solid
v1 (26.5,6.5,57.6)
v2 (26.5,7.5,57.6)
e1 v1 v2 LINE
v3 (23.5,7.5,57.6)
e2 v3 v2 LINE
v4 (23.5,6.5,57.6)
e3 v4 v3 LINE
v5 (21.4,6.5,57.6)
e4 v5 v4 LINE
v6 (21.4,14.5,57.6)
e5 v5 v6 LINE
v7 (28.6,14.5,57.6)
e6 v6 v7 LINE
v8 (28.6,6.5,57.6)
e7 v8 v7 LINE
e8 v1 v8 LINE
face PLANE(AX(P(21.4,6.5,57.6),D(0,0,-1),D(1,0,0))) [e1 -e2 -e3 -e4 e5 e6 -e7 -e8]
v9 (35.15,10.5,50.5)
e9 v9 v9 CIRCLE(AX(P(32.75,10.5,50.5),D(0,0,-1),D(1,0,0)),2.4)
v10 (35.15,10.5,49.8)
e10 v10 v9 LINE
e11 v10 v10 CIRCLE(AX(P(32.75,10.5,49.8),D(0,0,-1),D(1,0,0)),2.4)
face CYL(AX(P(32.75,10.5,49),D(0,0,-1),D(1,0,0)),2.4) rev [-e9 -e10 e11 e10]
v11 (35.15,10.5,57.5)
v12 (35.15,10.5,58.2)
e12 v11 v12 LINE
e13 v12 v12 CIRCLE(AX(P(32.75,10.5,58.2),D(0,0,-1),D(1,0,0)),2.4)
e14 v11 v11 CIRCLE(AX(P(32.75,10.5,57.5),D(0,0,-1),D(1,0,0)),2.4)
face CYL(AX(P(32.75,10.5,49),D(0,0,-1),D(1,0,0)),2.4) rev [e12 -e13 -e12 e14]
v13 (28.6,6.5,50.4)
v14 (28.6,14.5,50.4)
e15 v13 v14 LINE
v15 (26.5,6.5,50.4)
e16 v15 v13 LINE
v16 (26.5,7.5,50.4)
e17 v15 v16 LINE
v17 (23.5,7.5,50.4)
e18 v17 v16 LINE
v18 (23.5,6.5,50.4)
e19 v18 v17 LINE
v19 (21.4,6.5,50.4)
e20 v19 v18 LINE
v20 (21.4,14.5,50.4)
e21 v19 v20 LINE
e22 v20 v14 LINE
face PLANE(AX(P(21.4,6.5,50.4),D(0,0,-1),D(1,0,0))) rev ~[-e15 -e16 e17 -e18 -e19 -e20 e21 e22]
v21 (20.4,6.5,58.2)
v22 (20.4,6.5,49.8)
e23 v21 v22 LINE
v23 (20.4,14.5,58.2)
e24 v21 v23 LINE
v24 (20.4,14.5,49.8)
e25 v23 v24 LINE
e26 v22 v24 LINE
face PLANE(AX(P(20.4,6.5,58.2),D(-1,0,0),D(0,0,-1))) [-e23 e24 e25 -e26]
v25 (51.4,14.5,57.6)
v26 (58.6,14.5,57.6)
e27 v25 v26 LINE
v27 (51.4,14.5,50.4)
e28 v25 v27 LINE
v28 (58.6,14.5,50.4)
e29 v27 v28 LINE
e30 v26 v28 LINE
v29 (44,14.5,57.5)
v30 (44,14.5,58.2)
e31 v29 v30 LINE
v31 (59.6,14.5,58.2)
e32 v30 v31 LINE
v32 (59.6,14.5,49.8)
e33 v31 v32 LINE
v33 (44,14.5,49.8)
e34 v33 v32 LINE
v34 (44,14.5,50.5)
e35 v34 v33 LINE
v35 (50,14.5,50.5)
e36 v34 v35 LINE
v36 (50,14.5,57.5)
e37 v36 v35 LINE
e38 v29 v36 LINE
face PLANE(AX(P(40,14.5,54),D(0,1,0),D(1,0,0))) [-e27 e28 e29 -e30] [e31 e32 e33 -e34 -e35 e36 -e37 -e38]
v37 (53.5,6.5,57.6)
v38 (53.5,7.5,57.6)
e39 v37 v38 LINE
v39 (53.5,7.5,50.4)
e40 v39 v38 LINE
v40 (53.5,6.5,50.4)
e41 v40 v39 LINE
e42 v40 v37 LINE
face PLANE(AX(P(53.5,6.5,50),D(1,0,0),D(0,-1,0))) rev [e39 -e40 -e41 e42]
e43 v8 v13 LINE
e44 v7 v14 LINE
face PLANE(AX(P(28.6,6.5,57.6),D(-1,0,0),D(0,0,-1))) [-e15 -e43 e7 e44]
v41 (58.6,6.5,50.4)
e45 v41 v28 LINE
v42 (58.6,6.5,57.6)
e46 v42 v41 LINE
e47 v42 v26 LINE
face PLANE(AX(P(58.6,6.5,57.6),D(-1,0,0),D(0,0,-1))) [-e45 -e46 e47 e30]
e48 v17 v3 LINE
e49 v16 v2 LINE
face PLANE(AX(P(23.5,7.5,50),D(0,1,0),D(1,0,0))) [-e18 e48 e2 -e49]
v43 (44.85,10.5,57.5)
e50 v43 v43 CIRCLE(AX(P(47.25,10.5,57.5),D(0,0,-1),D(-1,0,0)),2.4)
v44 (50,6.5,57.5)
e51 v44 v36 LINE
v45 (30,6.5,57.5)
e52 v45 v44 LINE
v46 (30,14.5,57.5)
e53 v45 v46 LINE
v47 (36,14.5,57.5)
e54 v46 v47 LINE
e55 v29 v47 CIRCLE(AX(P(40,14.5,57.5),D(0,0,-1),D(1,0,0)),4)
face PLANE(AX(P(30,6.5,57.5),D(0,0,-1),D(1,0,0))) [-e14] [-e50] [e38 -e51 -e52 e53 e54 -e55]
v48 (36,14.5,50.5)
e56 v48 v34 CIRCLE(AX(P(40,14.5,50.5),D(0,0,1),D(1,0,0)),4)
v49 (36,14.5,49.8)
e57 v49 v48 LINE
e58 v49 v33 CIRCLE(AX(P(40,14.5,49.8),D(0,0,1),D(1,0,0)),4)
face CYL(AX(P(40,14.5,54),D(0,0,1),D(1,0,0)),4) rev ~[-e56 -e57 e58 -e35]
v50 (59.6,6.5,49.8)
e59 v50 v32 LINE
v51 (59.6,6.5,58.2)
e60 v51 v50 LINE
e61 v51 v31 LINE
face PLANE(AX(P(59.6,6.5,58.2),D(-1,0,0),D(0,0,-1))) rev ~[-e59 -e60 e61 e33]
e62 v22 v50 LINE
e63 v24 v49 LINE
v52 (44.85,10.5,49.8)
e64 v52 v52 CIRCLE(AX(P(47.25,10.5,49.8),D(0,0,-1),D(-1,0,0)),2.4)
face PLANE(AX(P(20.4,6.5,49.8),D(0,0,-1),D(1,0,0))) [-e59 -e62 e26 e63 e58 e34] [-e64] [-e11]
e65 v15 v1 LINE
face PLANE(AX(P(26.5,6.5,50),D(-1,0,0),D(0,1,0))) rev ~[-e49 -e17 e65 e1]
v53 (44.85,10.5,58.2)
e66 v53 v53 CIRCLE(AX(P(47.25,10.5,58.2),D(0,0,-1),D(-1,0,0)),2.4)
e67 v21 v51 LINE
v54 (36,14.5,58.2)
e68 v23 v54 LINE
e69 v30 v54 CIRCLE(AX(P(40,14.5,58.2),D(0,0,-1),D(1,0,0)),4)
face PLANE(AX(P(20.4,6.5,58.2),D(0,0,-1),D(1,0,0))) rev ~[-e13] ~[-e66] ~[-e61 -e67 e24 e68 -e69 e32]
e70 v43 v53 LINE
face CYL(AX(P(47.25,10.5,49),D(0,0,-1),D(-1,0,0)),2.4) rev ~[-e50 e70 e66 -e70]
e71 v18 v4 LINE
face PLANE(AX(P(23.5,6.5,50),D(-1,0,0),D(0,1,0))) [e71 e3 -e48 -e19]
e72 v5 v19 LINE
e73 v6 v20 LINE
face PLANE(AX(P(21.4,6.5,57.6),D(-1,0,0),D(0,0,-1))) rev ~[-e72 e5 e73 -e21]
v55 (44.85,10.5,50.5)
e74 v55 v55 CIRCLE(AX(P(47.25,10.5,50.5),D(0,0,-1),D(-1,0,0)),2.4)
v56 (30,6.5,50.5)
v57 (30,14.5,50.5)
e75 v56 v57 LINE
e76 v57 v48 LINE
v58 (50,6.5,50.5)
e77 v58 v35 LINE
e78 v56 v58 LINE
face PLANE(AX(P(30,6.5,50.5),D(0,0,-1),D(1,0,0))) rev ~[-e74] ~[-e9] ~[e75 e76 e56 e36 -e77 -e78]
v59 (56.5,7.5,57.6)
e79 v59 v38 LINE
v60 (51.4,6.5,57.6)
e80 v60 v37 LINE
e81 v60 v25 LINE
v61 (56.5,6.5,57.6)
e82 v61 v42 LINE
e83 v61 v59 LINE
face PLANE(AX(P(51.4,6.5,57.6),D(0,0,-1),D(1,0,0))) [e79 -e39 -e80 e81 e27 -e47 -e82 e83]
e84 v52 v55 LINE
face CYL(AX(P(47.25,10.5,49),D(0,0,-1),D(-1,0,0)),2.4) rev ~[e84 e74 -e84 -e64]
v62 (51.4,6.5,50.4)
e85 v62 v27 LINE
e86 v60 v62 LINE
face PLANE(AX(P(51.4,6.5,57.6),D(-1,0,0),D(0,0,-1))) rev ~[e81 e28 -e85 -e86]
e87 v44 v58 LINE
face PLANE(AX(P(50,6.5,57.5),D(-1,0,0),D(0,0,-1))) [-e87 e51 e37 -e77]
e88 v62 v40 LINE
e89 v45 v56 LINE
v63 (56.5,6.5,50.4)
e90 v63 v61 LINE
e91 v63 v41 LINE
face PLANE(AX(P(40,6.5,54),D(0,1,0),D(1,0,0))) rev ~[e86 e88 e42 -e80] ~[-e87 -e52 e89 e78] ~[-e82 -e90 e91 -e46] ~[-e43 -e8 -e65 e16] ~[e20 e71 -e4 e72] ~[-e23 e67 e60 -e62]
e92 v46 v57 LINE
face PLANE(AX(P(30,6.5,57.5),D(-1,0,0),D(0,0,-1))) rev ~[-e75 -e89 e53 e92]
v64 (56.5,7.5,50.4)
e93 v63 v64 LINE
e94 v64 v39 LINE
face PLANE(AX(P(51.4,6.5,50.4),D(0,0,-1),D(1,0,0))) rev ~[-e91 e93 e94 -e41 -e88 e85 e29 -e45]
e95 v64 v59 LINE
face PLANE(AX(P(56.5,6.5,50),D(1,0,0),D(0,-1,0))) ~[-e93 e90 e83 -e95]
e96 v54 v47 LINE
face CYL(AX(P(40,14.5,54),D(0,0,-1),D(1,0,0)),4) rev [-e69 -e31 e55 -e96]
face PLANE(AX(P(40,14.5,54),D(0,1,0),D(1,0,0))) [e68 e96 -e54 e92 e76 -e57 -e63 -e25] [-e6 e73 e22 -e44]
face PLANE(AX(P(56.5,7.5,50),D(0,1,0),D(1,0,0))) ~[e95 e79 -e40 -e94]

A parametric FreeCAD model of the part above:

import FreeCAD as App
import Part
import Sketcher
from FreeCAD import Vector
Q = App.Units.Quantity

doc = App.newDocument("Part")
body = doc.addObject("PartDesign::Body", "Body")

sketch1 = doc.addObject("Sketcher::SketchObject", "Sketch")
body.addObject(sketch1)
sketch1.AttachmentSupport = (doc.XY_Plane, [""])
sketch1.MapMode = "FlatFace"
sketch1.addGeometry(Part.LineSegment(Vector(-20, 4, 0), Vector(-20, -4, 0)), False)
sketch1.addGeometry(Part.LineSegment(Vector(-20, -4, 0), Vector(20, -4, 0)), False)
sketch1.addGeometry(Part.LineSegment(Vector(20, -4, 0), Vector(20, 4, 0)), False)
sketch1.addGeometry(Part.LineSegment(Vector(20, 4, 0), Vector(-20, 4, 0)), False)
sketch1.addGeometry(Part.LineSegment(Vector(-11, -4, 0), Vector(-19, -4, 0)), False)
sketch1.addGeometry(Part.LineSegment(Vector(-19, -4, 0), Vector(-19, 4, 0)), False)
sketch1.addGeometry(Part.LineSegment(Vector(-19, 4, 0), Vector(-11, 4, 0)), False)
sketch1.addGeometry(Part.LineSegment(Vector(-11, 4, 0), Vector(-11, -4, 0)), False)
sketch1.addGeometry(Part.LineSegment(Vector(10, -4, 0), Vector(-10, -4, 0)), False)
sketch1.addGeometry(Part.LineSegment(Vector(-10, -4, 0), Vector(-10, 4, 0)), False)
sketch1.addGeometry(Part.LineSegment(Vector(-10, 4, 0), Vector(10, 4, 0)), False)
sketch1.addGeometry(Part.LineSegment(Vector(10, 4, 0), Vector(10, -4, 0)), False)
sketch1.addGeometry(Part.LineSegment(Vector(19, -4, 0), Vector(11, -4, 0)), False)
sketch1.addGeometry(Part.LineSegment(Vector(11, -4, 0), Vector(11, 4, 0)), False)
sketch1.addGeometry(Part.LineSegment(Vector(11, 4, 0), Vector(19, 4, 0)), False)
sketch1.addGeometry(Part.LineSegment(Vector(19, 4, 0), Vector(19, -4, 0)), False)
sketch1.addConstraint(Sketcher.Constraint("Coincident", 0, 2, 1, 1))
sketch1.addConstraint(Sketcher.Constraint("Coincident", 1, 2, 2, 1))
sketch1.addConstraint(Sketcher.Constraint("Coincident", 2, 2, 3, 1))
sketch1.addConstraint(Sketcher.Constraint("Coincident", 3, 2, 0, 1))
sketch1.addConstraint(Sketcher.Constraint("Coincident", 4, 2, 5, 1))
sketch1.addConstraint(Sketcher.Constraint("Coincident", 5, 2, 6, 1))
sketch1.addConstraint(Sketcher.Constraint("Coincident", 6, 2, 7, 1))
sketch1.addConstraint(Sketcher.Constraint("Coincident", 7, 2, 4, 1))
sketch1.addConstraint(Sketcher.Constraint("Coincident", 8, 2, 9, 1))
sketch1.addConstraint(Sketcher.Constraint("Coincident", 9, 2, 10, 1))
sketch1.addConstraint(Sketcher.Constraint("Coincident", 10, 2, 11, 1))
sketch1.addConstraint(Sketcher.Constraint("Coincident", 11, 2, 8, 1))
sketch1.addConstraint(Sketcher.Constraint("Coincident", 12, 2, 13, 1))
sketch1.addConstraint(Sketcher.Constraint("Coincident", 13, 2, 14, 1))
sketch1.addConstraint(Sketcher.Constraint("Coincident", 14, 2, 15, 1))
sketch1.addConstraint(Sketcher.Constraint("Coincident", 15, 2, 12, 1))
sketch1.addConstraint(Sketcher.Constraint("Vertical", 0))
sketch1.addConstraint(Sketcher.Constraint("Horizontal", 1))
sketch1.addConstraint(Sketcher.Constraint("Vertical", 2))
sketch1.addConstraint(Sketcher.Constraint("Horizontal", 3))
sketch1.addConstraint(Sketcher.Constraint("Horizontal", 4))
sketch1.addConstraint(Sketcher.Constraint("Vertical", 5))
sketch1.addConstraint(Sketcher.Constraint("Horizontal", 6))
sketch1.addConstraint(Sketcher.Constraint("Vertical", 7))
sketch1.addConstraint(Sketcher.Constraint("Horizontal", 8))
sketch1.addConstraint(Sketcher.Constraint("Vertical", 9))
sketch1.addConstraint(Sketcher.Constraint("Horizontal", 10))
sketch1.addConstraint(Sketcher.Constraint("Vertical", 11))
sketch1.addConstraint(Sketcher.Constraint("Horizontal", 12))
sketch1.addConstraint(Sketcher.Constraint("Vertical", 13))
sketch1.addConstraint(Sketcher.Constraint("Horizontal", 14))
sketch1.addConstraint(Sketcher.Constraint("Vertical", 15))
sketch1.addConstraint(Sketcher.Constraint("Symmetric", 0, 2, 2, 2, -1, 1))
sketch1.addConstraint(Sketcher.Constraint("Symmetric", 8, 2, 10, 2, -1, 1))
sketch1.addConstraint(Sketcher.Constraint("Symmetric", 6, 2, 12, 2, -1, 1))
sketch1.addConstraint(Sketcher.Constraint("Symmetric", 4, 2, 14, 2, -1, 1))
sketch1.addConstraint(Sketcher.Constraint("Horizontal", 7, 2, 12, 2))
sketch1.addConstraint(Sketcher.Constraint("Equal", 14, 5))
sketch1.addConstraint(Sketcher.Constraint("DistanceX", 8, 2, 8, 1, Q("20 mm")))
sketch1.addConstraint(Sketcher.Constraint("DistanceY", 9, 1, 9, 2, Q("7 mm")))
sketch1.addConstraint(Sketcher.Constraint("DistanceX", 1, 1, 1, 2, Q("39.2 mm")))
sketch1.addConstraint(Sketcher.Constraint("DistanceX", 4, 2, 4, 1, Q("7.2 mm")))
sketch1.addConstraint(Sketcher.Constraint("DistanceY", 0, 2, 0, 1, Q("8.4 mm")))
sketch1.addConstraint(Sketcher.Constraint("DistanceX", 0, 2, 4, 2, Q("1 mm")))
pad1 = doc.addObject("PartDesign::Pad", "Pad")
body.addObject(pad1)
pad1.Profile = sketch1
pad1.Length = 8

sketch2 = doc.addObject("Sketcher::SketchObject", "Sketch001")
body.addObject(sketch2)
sketch2.AttachmentSupport = (doc.XZ_Plane, [""])
sketch2.MapMode = "FlatFace"
sketch2.addGeometry(Part.Circle(Vector(0, 8, 0), Vector(0, 0, 1), 4), False)
sketch2.addConstraint(Sketcher.Constraint("PointOnObject", 0, 3, -2))
sketch2.addConstraint(Sketcher.Constraint("Diameter", 0, Q("8 mm")))
sketch2.addConstraint(Sketcher.Constraint("DistanceY", -1, 1, 0, 3, Q("8 mm")))
pocket1 = doc.addObject("PartDesign::Pocket", "Pocket")
body.addObject(pocket1)
pocket1.Profile = sketch2
pocket1.Length = 5
pocket1.Reversed = True
doc.recompute()

mirrored = doc.addObject("PartDesign::Mirrored", "Mirrored")
body.addObject(mirrored)
mirrored.Originals = [pocket1]
mirrored.MirrorPlane = (doc.XZ_Plane, [""])
body.Tip = mirrored

sketch3 = doc.addObject("Sketcher::SketchObject", "Sketch002")
body.addObject(sketch3)
sketch3.AttachmentSupport = (doc.XZ_Plane, [""])
sketch3.MapMode = "FlatFace"
sketch3.AttachmentOffset = App.Placement(Vector(0, 0, -4), App.Rotation())
sketch3.addGeometry(Part.LineSegment(Vector(-16.5, 1, 0), Vector(-16.5, 0, 0)), False)
sketch3.addGeometry(Part.LineSegment(Vector(-16.5, 0, 0), Vector(-13.5, 0, 0)), False)
sketch3.addGeometry(Part.LineSegment(Vector(-13.5, 0, 0), Vector(-13.5, 1, 0)), False)
sketch3.addGeometry(Part.LineSegment(Vector(-13.5, 1, 0), Vector(-16.5, 1, 0)), False)
sketch3.addConstraint(Sketcher.Constraint("Coincident", 0, 2, 1, 1))
sketch3.addConstraint(Sketcher.Constraint("Coincident", 1, 2, 2, 1))
sketch3.addConstraint(Sketcher.Constraint("Coincident", 2, 2, 3, 1))
sketch3.addConstraint(Sketcher.Constraint("Coincident", 3, 2, 0, 1))
sketch3.addConstraint(Sketcher.Constraint("Vertical", 0))
sketch3.addConstraint(Sketcher.Constraint("Horizontal", 1))
sketch3.addConstraint(Sketcher.Constraint("Vertical", 2))
sketch3.addConstraint(Sketcher.Constraint("Horizontal", 3))
sketch3.addConstraint(Sketcher.Constraint("PointOnObject", 0, 2, -1))
sketch3.addConstraint(Sketcher.Constraint("DistanceX", 1, 1, 1, 2, Q("3 mm")))
sketch3.addConstraint(Sketcher.Constraint("DistanceY", 0, 2, 0, 1, Q("1 mm")))
sketch3.addConstraint(Sketcher.Constraint("DistanceX", 0, 2, -1, 1, Q("16.5 mm")))
pad2 = doc.addObject("PartDesign::Pad", "Pad001")
body.addObject(pad2)
pad2.Profile = sketch3
pad2.Length = 8
doc.recompute()

mirrored2 = doc.addObject("PartDesign::Mirrored", "Mirrored001")
body.addObject(mirrored2)
mirrored2.Originals = [pad2]
mirrored2.MirrorPlane = (doc.YZ_Plane, [""])
body.Tip = mirrored2

sketch4 = doc.addObject("Sketcher::SketchObject", "Sketch003")
body.addObject(sketch4)
sketch4.AttachmentSupport = (doc.XZ_Plane, [""])
sketch4.MapMode = "FlatFace"
sketch4.AttachmentOffset = App.Placement(Vector(0, 0, -5), App.Rotation())
sketch4.addGeometry(Part.Circle(Vector(-7.2, 4, 0), Vector(0, 0, 1), 2.4), False)
sketch4.addConstraint(Sketcher.Constraint("Diameter", 0, Q("4.8 mm")))
sketch4.addConstraint(Sketcher.Constraint("DistanceY", -1, 1, 0, 3, Q("4 mm")))
sketch4.addConstraint(Sketcher.Constraint("DistanceX", 0, 3, -1, 1, Q("7.25 mm")))
pocket2 = doc.addObject("PartDesign::Pocket", "Pocket001")
body.addObject(pocket2)
pocket2.Profile = sketch4
pocket2.Length = 10
pocket2.Reversed = True
doc.recompute()

mirrored3 = doc.addObject("PartDesign::Mirrored", "Mirrored002")
body.addObject(mirrored3)
mirrored3.Originals = [pocket2]
mirrored3.MirrorPlane = (doc.YZ_Plane, [""])
body.Tip = mirrored3
body2 = doc.addObject("PartDesign::Body", "Body001")
doc.recompute()

body.Placement = App.Placement(Vector(0, 0, -10.5), App.Rotation(Vector(0, 0, 1), 0))
boolean = doc.addObject("PartDesign::Boolean", "Boolean")
body2.addObject(boolean)
boolean.Type = "Fuse"
boolean.addObjects([body])
body3 = doc.addObject("PartDesign::Body", "Body002")
doc.recompute()

body2.Placement = App.Placement(Vector(40, 17, 54), App.Rotation(Vector(-1, 0, 0), 90))
boolean2 = doc.addObject("PartDesign::Boolean", "Boolean001")
body3.addObject(boolean2)
boolean2.Type = "Fuse"
boolean2.addObjects([body2])

doc.recompute()
